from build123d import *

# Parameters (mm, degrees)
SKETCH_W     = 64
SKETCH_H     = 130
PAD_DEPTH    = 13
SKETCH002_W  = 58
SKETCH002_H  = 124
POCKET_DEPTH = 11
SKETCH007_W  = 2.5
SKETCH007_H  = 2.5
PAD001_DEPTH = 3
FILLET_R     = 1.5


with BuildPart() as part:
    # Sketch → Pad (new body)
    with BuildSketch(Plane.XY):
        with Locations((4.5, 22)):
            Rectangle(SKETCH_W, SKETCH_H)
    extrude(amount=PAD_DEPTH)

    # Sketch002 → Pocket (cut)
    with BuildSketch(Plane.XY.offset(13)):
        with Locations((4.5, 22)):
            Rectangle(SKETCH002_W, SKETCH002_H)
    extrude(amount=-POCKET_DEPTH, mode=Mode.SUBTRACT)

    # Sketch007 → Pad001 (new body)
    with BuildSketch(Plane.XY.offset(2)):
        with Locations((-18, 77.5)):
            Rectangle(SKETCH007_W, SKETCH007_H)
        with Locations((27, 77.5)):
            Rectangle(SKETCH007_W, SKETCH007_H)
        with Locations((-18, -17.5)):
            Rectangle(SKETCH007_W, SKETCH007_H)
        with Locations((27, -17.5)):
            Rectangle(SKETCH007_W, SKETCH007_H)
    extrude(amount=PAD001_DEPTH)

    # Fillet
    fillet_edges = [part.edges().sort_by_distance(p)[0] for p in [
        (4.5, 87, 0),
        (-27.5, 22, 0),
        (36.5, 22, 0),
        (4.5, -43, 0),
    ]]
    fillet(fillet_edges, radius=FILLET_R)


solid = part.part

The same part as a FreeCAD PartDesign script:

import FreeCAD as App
import Part
import Sketcher
from FreeCAD import Vector


def edges_at(feature, points):
    """Names of the edges that pass closest to the given points."""
    edges = feature.Shape.Edges
    near = lambda p: min(range(len(edges)), key=lambda i: edges[i].distToShape(Part.Vertex(*p))[0])
    return sorted({f"Edge{near(p) + 1}" for p in points})


def add_polygon(sketch, points):
    """Adds a closed chain of lines whose ends are joined by coincident constraints."""
    first, n = sketch.GeometryCount, len(points)
    for a, b in zip(points, points[1:] + points[:1]):
        sketch.addGeometry(Part.LineSegment(App.Vector(*a, 0), App.Vector(*b, 0)), False)
    for i in range(n):
        sketch.addConstraint(Sketcher.Constraint("Coincident", first + i, 2, first + (i + 1) % n, 1))

doc = App.newDocument("Part")
body = doc.addObject("PartDesign::Body", "Body")

sketch1 = doc.addObject("Sketcher::SketchObject", "Sketch")
body.addObject(sketch1)
sketch1.AttachmentSupport = (doc.XY_Plane, [""])
sketch1.MapMode = "FlatFace"
add_polygon(sketch1, [(-28, 87), (-28, -43), (36, -43), (36, 87)])
sketch1.addConstraint(Sketcher.Constraint("Vertical", 0))
sketch1.addConstraint(Sketcher.Constraint("Horizontal", 1))
sketch1.addConstraint(Sketcher.Constraint("Vertical", 2))
sketch1.addConstraint(Sketcher.Constraint("Horizontal", 3))
sketch1.addConstraint(Sketcher.Constraint("DistanceX", 1, 1, 1, 2, 64.0))
sketch1.addConstraint(Sketcher.Constraint("DistanceY", 0, 2, 0, 1, 130.0))
sketch1.addConstraint(Sketcher.Constraint("DistanceY", 0, 2, -1, 1, 43.0))
sketch1.addConstraint(Sketcher.Constraint("DistanceX", 0, 2, -1, 1, 27.5))
pad1 = doc.addObject("PartDesign::Pad", "Pad")
body.addObject(pad1)
pad1.Profile = sketch1
pad1.Length = 13

sketch2 = doc.addObject("Sketcher::SketchObject", "Sketch001")
body.addObject(sketch2)
sketch2.AttachmentSupport = (doc.XY_Plane, [""])
sketch2.MapMode = "FlatFace"
sketch2.AttachmentOffset = App.Placement(Vector(0, 0, 13), App.Rotation())
add_polygon(sketch2, [(-24, 84), (-24, -40), (34, -40), (34, 84)])
sketch2.addConstraint(Sketcher.Constraint("Vertical", 0))
sketch2.addConstraint(Sketcher.Constraint("Horizontal", 1))
sketch2.addConstraint(Sketcher.Constraint("Vertical", 2))
sketch2.addConstraint(Sketcher.Constraint("Horizontal", 3))
sketch2.addConstraint(Sketcher.Constraint("DistanceX", 1, 1, 1, 2, 58.0))
sketch2.addConstraint(Sketcher.Constraint("DistanceY", 0, 2, 0, 1, 124.0))
sketch2.addConstraint(Sketcher.Constraint("DistanceY", 0, 2, -1, 1, 40.0))
sketch2.addConstraint(Sketcher.Constraint("DistanceX", 0, 2, -1, 1, 24.5))
pocket1 = doc.addObject("PartDesign::Pocket", "Pocket")
body.addObject(pocket1)
pocket1.Profile = sketch2
pocket1.Length = 11

sketch3 = doc.addObject("Sketcher::SketchObject", "Sketch002")
body.addObject(sketch3)
sketch3.AttachmentSupport = (doc.XY_Plane, [""])
sketch3.MapMode = "FlatFace"
sketch3.AttachmentOffset = App.Placement(Vector(0, 0, 2), App.Rotation())
add_polygon(sketch3, [(-19.2, 78.8), (-19.2, 76.2), (-16.8, 76.2), (-16.8, 78.8)])
add_polygon(sketch3, [(25.8, 78.8), (25.8, 76.2), (28.2, 76.2), (28.2, 78.8)])
add_polygon(sketch3, [(-19.2, -16.2), (-19.2, -18.8), (-16.8, -18.8), (-16.8, -16.2)])
add_polygon(sketch3, [(25.8, -16.2), (25.8, -18.8), (28.2, -18.8), (28.2, -16.2)])
sketch3.addConstraint(Sketcher.Constraint("Vertical", 0))
sketch3.addConstraint(Sketcher.Constraint("Horizontal", 1))
sketch3.addConstraint(Sketcher.Constraint("Vertical", 2))
sketch3.addConstraint(Sketcher.Constraint("Horizontal", 3))
sketch3.addConstraint(Sketcher.Constraint("Vertical", 4))
sketch3.addConstraint(Sketcher.Constraint("Horizontal", 5))
sketch3.addConstraint(Sketcher.Constraint("Vertical", 6))
sketch3.addConstraint(Sketcher.Constraint("Horizontal", 7))
sketch3.addConstraint(Sketcher.Constraint("Vertical", 8))
sketch3.addConstraint(Sketcher.Constraint("Horizontal", 9))
sketch3.addConstraint(Sketcher.Constraint("Vertical", 10))
sketch3.addConstraint(Sketcher.Constraint("Horizontal", 11))
sketch3.addConstraint(Sketcher.Constraint("Vertical", 12))
sketch3.addConstraint(Sketcher.Constraint("Horizontal", 13))
sketch3.addConstraint(Sketcher.Constraint("Vertical", 14))
sketch3.addConstraint(Sketcher.Constraint("Horizontal", 15))
sketch3.addConstraint(Sketcher.Constraint("Horizontal", 1, 2, 4, 2))
sketch3.addConstraint(Sketcher.Constraint("Horizontal", 3, 2, 6, 2))
sketch3.addConstraint(Sketcher.Constraint("Horizontal", 9, 2, 12, 2))
sketch3.addConstraint(Sketcher.Constraint("Horizontal", 11, 2, 14, 2))
sketch3.addConstraint(Sketcher.Constraint("Vertical", 3, 2, 8, 2))
sketch3.addConstraint(Sketcher.Constraint("Vertical", 2, 2, 9, 2))
sketch3.addConstraint(Sketcher.Constraint("Vertical", 7, 2, 12, 2))
sketch3.addConstraint(Sketcher.Constraint("Vertical", 6, 2, 13, 2))
sketch3.addConstraint(Sketcher.Constraint("Equal", 3, 5))
sketch3.addConstraint(Sketcher.Constraint("Equal", 15, 0))
sketch3.addConstraint(Sketcher.Constraint("Equal", 6, 8))
sketch3.addConstraint(Sketcher.Constraint("DistanceX", 1, 1, 1, 2, 2.5))
sketch3.addConstraint(Sketcher.Constraint("DistanceX", 0, 2, 4, 2, 45.0))
sketch3.addConstraint(Sketcher.Constraint("DistanceY", 8, 2, 0, 2, 95.0))
sketch3.addConstraint(Sketcher.Constraint("DistanceX", 0, 2, -1, 1, 19.25))
sketch3.addConstraint(Sketcher.Constraint("DistanceY", -1, 1, 0, 2, 76.25))
pad2 = doc.addObject("PartDesign::Pad", "Pad001")
body.addObject(pad2)
pad2.Profile = sketch3
pad2.Length = 3
doc.recompute()

fillet = doc.addObject("PartDesign::Fillet", "Fillet")
body.addObject(fillet)
fillet.Base = (pad2, edges_at(pad2, [
    (4.5, 87, 0),
    (-27.5, 22, 0),
    (36.5, 22, 0),
    (4.5, -43, 0),
]))
fillet.Radius = 1.5

doc.recompute()
